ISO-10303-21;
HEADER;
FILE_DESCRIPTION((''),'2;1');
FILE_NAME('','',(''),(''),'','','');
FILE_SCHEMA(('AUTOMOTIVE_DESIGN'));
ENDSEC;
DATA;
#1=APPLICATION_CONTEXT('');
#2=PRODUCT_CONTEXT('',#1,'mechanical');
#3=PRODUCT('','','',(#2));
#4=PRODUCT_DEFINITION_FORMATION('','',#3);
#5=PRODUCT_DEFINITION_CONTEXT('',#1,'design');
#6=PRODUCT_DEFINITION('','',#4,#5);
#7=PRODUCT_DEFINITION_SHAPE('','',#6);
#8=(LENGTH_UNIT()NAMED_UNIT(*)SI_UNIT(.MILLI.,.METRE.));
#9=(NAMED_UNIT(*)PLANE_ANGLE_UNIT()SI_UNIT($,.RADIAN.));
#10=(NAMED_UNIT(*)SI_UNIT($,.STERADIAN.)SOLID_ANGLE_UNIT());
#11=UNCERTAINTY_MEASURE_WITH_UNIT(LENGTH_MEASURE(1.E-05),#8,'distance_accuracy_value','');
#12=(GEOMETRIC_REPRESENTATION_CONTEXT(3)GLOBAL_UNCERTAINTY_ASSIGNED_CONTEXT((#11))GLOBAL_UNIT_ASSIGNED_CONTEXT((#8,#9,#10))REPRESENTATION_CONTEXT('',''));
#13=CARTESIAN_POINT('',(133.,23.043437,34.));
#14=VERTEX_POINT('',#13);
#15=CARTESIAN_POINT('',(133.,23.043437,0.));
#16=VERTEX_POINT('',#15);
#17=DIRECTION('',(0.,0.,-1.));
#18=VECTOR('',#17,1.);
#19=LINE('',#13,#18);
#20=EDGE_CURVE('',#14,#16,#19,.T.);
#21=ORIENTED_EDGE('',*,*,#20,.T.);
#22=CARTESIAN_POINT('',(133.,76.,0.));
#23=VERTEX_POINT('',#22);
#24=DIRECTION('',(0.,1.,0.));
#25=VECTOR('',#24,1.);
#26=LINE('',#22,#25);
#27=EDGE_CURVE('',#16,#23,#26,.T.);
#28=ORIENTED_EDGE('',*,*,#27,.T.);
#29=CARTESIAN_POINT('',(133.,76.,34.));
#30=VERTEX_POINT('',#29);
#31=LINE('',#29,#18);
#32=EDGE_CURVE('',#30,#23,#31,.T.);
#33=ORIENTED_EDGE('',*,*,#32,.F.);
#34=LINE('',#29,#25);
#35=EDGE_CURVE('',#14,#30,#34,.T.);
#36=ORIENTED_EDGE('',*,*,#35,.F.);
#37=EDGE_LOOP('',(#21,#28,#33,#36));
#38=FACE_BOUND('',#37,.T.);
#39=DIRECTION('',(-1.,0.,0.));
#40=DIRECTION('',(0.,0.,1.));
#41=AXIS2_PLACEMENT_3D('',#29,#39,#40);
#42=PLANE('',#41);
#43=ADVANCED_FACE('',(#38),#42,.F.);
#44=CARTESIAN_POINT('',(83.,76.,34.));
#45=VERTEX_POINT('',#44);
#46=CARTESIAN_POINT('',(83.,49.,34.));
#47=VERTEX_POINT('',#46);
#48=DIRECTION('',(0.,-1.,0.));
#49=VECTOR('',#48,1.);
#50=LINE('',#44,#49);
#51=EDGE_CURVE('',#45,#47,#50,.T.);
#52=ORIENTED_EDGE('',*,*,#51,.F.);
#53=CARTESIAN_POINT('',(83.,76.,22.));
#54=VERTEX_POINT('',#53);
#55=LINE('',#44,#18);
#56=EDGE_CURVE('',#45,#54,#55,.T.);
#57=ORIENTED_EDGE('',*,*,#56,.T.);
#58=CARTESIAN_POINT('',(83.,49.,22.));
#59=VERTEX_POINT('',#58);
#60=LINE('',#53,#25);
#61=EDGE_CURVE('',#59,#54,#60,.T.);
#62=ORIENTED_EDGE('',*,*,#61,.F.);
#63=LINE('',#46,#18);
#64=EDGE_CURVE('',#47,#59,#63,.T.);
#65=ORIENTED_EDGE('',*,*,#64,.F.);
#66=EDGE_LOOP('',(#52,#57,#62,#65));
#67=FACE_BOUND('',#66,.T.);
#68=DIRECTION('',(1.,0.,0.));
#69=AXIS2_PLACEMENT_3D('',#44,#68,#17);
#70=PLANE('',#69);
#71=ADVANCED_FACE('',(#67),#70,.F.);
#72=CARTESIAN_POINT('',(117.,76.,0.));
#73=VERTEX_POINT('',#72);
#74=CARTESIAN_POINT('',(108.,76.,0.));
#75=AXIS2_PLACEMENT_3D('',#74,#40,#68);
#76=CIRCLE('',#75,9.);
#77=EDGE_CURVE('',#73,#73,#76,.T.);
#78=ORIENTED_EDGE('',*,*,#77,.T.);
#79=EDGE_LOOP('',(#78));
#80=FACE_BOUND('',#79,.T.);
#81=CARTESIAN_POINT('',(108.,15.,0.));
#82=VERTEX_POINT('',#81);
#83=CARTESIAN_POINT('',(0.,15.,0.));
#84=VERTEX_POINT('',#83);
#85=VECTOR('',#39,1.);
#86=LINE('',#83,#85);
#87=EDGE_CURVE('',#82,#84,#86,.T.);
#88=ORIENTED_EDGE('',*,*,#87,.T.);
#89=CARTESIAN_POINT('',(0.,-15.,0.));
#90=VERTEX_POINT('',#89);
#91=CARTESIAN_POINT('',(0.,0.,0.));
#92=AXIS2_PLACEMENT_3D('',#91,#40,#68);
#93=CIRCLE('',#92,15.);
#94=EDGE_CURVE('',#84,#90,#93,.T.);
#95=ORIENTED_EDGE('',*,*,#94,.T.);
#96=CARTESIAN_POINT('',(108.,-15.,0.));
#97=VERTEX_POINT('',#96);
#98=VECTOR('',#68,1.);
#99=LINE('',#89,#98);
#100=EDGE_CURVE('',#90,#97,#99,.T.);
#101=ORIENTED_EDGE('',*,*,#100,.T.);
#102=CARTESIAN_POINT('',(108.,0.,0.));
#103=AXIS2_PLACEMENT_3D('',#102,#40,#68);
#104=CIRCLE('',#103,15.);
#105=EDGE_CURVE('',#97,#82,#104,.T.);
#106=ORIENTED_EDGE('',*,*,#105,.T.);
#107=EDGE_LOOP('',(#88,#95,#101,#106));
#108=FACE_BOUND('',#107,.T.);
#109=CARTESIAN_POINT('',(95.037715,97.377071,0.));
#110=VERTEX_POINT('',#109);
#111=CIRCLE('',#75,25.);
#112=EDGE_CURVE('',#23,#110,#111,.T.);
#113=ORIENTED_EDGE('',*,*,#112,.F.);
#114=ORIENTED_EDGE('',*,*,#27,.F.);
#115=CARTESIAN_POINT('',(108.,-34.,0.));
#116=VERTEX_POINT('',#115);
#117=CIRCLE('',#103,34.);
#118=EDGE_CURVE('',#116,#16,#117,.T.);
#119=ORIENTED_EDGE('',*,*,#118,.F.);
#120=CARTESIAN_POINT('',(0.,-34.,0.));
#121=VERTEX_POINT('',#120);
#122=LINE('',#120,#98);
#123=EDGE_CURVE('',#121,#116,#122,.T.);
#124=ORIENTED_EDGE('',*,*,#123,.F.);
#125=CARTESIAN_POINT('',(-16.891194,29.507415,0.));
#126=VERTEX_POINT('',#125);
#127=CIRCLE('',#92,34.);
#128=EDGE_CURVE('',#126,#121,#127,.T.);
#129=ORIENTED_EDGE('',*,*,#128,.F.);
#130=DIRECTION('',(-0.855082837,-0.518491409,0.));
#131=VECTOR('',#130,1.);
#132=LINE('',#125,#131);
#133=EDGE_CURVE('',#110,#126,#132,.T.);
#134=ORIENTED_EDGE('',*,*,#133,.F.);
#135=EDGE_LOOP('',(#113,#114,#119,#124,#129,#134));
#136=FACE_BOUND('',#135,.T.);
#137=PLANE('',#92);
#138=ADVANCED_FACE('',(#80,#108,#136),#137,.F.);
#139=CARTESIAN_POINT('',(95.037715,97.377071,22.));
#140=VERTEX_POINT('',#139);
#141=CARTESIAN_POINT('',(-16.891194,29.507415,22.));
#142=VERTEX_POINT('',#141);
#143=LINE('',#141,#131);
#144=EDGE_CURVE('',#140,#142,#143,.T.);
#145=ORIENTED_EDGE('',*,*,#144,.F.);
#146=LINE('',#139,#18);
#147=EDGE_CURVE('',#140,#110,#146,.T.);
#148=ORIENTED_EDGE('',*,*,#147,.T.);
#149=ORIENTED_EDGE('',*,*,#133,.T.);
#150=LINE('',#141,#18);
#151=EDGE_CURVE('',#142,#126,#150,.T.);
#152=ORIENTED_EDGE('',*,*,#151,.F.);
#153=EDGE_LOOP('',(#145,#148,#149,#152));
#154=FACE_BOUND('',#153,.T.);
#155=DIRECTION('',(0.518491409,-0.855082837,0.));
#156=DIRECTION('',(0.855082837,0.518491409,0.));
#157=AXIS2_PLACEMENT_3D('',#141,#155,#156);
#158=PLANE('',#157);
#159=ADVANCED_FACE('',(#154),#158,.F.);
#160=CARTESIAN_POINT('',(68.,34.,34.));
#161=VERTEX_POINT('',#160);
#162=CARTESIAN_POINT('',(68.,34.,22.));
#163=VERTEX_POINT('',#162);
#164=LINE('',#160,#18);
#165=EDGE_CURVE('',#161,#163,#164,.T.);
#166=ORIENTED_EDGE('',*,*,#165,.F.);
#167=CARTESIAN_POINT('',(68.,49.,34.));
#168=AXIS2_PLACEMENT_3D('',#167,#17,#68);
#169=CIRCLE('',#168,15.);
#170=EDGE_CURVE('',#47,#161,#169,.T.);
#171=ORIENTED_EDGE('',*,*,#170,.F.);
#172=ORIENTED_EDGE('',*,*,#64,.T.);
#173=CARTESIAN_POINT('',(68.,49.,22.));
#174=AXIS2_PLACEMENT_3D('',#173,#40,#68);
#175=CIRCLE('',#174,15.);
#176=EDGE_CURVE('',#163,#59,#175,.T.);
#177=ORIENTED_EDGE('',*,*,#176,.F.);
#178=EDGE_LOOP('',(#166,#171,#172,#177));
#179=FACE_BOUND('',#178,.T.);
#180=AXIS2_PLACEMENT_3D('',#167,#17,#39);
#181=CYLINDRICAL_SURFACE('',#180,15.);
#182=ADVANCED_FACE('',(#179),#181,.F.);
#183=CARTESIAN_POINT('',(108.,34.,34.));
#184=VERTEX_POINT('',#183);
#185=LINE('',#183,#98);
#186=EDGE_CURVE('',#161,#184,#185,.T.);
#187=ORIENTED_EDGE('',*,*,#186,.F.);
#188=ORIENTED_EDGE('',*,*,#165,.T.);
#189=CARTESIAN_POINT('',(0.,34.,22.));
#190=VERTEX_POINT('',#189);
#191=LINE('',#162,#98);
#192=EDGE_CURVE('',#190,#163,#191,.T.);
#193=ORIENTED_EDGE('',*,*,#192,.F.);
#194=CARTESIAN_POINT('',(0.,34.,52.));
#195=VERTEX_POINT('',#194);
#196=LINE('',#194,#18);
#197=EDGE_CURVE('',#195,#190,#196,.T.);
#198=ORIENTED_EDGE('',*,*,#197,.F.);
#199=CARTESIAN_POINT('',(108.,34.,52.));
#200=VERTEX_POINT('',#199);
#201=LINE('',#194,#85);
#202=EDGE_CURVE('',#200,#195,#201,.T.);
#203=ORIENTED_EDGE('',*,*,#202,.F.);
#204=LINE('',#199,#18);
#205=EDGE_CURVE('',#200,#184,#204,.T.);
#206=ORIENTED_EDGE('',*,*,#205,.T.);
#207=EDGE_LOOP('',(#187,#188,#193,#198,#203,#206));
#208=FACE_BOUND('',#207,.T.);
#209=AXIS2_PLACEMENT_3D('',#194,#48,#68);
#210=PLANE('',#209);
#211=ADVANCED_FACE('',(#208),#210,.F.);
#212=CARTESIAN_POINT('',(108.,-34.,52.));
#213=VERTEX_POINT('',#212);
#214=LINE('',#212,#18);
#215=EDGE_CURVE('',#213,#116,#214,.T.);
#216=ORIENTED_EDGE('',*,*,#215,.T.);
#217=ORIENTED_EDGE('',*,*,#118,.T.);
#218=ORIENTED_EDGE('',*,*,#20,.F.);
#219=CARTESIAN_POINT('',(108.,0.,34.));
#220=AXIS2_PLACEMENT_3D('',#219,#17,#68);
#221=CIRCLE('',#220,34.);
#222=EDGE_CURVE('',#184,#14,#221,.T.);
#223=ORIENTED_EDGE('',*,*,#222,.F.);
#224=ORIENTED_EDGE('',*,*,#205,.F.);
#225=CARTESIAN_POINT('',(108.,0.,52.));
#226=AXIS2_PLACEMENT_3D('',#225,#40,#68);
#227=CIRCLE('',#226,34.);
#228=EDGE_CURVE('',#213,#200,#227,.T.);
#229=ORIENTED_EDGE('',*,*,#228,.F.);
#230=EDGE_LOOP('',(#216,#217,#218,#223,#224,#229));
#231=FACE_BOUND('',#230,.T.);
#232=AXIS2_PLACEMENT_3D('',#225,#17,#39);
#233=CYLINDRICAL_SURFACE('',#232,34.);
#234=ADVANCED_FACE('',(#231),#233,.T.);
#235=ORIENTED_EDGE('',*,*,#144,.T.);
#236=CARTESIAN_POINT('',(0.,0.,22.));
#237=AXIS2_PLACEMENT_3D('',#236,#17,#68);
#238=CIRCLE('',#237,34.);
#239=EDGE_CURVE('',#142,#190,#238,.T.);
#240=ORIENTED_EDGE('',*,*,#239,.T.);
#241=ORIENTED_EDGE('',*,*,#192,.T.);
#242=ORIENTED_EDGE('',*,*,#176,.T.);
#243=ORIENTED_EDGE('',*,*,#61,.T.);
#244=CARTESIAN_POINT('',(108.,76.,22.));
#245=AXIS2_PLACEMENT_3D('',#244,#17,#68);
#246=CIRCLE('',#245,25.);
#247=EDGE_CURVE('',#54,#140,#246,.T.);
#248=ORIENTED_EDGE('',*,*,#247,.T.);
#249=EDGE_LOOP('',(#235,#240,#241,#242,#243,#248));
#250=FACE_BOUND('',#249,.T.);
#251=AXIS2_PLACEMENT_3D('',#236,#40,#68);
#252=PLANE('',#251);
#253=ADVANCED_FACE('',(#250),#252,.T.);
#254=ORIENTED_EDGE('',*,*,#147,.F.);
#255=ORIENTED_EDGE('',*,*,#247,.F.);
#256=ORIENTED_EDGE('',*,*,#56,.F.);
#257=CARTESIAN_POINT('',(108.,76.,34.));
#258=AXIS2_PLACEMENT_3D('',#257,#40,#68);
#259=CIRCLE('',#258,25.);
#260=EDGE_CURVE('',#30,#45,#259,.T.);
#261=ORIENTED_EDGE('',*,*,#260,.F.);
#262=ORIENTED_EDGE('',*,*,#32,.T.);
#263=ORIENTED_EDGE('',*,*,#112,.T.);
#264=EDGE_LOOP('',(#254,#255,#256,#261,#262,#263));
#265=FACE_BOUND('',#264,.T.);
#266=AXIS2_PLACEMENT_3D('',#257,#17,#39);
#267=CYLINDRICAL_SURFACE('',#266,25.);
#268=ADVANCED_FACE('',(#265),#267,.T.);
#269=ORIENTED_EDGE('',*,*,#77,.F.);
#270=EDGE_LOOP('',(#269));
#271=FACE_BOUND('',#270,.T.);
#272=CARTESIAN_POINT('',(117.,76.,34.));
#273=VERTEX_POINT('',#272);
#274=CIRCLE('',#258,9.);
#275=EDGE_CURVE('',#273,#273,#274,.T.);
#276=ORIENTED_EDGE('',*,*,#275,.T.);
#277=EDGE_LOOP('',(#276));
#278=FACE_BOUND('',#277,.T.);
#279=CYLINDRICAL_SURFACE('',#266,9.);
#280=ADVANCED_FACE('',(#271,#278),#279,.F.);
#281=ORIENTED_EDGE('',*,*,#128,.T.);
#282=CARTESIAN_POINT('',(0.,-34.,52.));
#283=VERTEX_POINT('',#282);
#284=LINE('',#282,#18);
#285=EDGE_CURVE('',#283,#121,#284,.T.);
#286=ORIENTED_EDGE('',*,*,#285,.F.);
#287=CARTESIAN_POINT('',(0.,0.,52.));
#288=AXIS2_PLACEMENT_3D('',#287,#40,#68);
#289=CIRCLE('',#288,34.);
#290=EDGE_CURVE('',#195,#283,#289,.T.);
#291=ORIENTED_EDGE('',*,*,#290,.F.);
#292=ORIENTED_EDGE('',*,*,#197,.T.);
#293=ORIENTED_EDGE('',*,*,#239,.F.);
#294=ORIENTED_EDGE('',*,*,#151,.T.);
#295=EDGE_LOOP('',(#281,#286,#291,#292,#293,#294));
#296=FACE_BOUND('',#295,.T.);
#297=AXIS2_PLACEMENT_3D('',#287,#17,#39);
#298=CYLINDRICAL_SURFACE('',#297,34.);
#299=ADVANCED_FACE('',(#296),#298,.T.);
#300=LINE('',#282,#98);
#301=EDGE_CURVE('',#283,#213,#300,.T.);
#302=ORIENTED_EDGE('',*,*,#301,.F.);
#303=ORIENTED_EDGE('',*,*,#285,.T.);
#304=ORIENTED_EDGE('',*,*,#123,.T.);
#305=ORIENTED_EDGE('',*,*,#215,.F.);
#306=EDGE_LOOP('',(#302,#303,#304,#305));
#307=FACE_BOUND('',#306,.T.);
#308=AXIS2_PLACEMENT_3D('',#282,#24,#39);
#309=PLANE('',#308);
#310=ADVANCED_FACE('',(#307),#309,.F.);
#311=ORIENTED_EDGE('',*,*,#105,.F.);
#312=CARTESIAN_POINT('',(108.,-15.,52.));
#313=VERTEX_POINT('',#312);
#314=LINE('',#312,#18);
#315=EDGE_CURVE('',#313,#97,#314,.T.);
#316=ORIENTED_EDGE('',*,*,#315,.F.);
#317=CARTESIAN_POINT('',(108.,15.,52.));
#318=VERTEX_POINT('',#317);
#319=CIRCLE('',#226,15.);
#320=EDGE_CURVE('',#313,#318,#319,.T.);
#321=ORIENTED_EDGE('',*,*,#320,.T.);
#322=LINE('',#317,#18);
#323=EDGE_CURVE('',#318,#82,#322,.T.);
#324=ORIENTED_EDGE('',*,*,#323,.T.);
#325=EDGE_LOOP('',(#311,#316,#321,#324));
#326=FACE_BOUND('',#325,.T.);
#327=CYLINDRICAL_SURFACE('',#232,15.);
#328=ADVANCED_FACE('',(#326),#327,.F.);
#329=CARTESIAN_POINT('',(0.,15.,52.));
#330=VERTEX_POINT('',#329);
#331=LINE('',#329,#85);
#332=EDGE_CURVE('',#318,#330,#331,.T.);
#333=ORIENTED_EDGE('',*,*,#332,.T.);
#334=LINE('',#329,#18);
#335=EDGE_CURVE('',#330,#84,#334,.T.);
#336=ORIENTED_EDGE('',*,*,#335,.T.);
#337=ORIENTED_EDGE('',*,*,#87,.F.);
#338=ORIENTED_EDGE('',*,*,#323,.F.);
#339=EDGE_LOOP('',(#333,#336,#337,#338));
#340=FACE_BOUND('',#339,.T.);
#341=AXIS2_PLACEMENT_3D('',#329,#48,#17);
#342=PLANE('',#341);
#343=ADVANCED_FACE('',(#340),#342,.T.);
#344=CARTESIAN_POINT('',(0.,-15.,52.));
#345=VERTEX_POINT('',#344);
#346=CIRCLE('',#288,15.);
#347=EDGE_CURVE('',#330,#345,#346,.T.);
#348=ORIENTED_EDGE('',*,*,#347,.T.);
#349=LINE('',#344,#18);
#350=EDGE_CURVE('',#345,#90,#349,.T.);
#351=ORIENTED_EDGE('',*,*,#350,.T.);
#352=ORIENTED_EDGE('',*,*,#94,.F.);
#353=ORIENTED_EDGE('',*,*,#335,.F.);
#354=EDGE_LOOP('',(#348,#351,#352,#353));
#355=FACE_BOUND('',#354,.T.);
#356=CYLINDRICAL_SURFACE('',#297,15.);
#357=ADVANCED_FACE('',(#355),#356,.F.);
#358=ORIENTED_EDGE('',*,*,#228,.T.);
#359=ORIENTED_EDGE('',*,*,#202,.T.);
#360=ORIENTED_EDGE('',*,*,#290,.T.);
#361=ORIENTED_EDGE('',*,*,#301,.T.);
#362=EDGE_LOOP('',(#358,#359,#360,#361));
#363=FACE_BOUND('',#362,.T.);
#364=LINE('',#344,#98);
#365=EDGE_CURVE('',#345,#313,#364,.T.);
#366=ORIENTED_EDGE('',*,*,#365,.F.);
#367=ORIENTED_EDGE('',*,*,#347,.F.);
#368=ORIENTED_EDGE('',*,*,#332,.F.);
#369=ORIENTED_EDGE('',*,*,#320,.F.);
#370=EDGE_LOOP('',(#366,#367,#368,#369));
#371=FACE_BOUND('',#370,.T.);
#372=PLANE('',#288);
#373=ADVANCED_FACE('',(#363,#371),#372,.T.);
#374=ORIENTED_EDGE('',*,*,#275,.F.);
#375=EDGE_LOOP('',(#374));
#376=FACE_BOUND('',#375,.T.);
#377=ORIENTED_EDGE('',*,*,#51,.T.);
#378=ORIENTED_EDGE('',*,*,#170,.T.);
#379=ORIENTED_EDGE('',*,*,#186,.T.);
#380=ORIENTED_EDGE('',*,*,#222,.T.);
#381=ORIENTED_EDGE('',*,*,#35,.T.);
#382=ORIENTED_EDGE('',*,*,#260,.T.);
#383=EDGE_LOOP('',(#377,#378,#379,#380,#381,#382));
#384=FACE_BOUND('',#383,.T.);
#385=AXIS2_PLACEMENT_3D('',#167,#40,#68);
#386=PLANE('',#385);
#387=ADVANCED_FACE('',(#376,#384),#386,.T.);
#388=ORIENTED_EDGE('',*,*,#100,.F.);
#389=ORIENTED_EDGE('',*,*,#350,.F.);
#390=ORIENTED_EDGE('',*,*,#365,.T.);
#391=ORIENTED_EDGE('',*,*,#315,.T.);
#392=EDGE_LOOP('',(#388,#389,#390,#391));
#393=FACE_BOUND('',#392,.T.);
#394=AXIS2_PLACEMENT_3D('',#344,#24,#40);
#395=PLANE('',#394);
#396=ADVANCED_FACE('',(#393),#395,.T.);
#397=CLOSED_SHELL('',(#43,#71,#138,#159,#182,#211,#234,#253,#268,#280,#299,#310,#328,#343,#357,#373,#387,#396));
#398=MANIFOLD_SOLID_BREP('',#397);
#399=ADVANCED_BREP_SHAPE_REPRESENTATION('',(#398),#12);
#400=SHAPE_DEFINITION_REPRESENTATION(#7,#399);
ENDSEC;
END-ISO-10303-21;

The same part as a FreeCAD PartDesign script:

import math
import FreeCAD as App
import Part
import Sketcher
Q = App.Units.Quantity

doc = App.newDocument("Part")
body = doc.addObject("PartDesign::Body", "Body")

# Sketch on XY plane
sketch1 = doc.addObject("Sketcher::SketchObject", "Sketch")
body.addObject(sketch1)
sketch1.AttachmentSupport = (doc.XY_Plane, [""])
sketch1.MapMode = "FlatFace"
sketch1.addGeometry([
    Part.LineSegment(App.Vector(108, 34, 0), App.Vector(0, 34, 0)),  # 0
    Part.ArcOfCircle(Part.Circle(App.Vector(0, 0, 0), App.Vector(0, 0, 1), 34), math.radians(90), math.radians(270)),  # 1
    Part.LineSegment(App.Vector(0, -34, 0), App.Vector(108, -34, 0)),  # 2
    Part.ArcOfCircle(Part.Circle(App.Vector(108, 0, 0), App.Vector(0, 0, 1), 34), math.radians(-90), math.radians(90)),  # 3
    Part.LineSegment(App.Vector(0, 15, 0), App.Vector(108, 15, 0)),  # 4
    Part.ArcOfCircle(Part.Circle(App.Vector(108, 0, 0), App.Vector(0, 0, 1), 15), math.radians(-90), math.radians(90)),  # 5
    Part.LineSegment(App.Vector(108, -15, 0), App.Vector(0, -15, 0)),  # 6
    Part.ArcOfCircle(Part.Circle(App.Vector(0, 0, 0), App.Vector(0, 0, 1), 15), math.radians(90), math.radians(270)),  # 7
], False)
sketch1.addConstraint([
    Sketcher.Constraint("Tangent", 0, 2, 1, 1),
    Sketcher.Constraint("Tangent", 1, 2, 2, 1),
    Sketcher.Constraint("Tangent", 2, 2, 3, 1),
    Sketcher.Constraint("Tangent", 3, 2, 0, 1),
    Sketcher.Constraint("Tangent", 4, 2, 5, 2),
    Sketcher.Constraint("Tangent", 5, 1, 6, 1),
    Sketcher.Constraint("Tangent", 6, 2, 7, 2),
    Sketcher.Constraint("Tangent", 7, 1, 4, 1),
    Sketcher.Constraint("Horizontal", 0),
    Sketcher.Constraint("Horizontal", 2),
    Sketcher.Constraint("Horizontal", 4),
    Sketcher.Constraint("Horizontal", 6),
    Sketcher.Constraint("Coincident", 1, 3, -1, 1),
    Sketcher.Constraint("Coincident", 7, 3, -1, 1),
    Sketcher.Constraint("Vertical", 5, 3, 2, 2),
    Sketcher.Constraint("Radius", 1, Q("34 mm")),
    Sketcher.Constraint("Radius", 5, Q("15 mm")),
    Sketcher.Constraint("DistanceX", 0, 2, 0, 1, Q("108 mm")),
])
pad1 = doc.addObject("PartDesign::Pad", "Pad")
body.addObject(pad1)
pad1.Profile = sketch1
pad1.Length = 52

# Sketch on XY plane
sketch2 = doc.addObject("Sketcher::SketchObject", "Sketch001")
body.addObject(sketch2)
sketch2.AttachmentSupport = (doc.XY_Plane, [""])
sketch2.MapMode = "FlatFace"
sketch2.addGeometry([
    Part.LineSegment(App.Vector(68, 34, 0), App.Vector(108, 34, 0)),  # 0
    Part.ArcOfCircle(Part.Circle(App.Vector(108, 0, 0), App.Vector(0, 0, 1), 34), math.radians(43), math.radians(90)),  # 1
    Part.LineSegment(App.Vector(133, 23, 0), App.Vector(133, 76, 0)),  # 2
    Part.ArcOfCircle(Part.Circle(App.Vector(108, 76, 0), App.Vector(0, 0, 1), 25), math.radians(0), math.radians(180)),  # 3
    Part.LineSegment(App.Vector(83, 76, 0), App.Vector(83, 49, 0)),  # 4
    Part.ArcOfCircle(Part.Circle(App.Vector(68, 49, 0), App.Vector(0, 0, 1), 15), math.radians(-90), math.radians(0)),  # 5
    Part.Circle(App.Vector(108, 76, 0), App.Vector(0, 0, 1), 9),  # 6
], False)
sketch2.addConstraint([
    Sketcher.Constraint("Tangent", 0, 2, 1, 2),
    Sketcher.Constraint("Coincident", 1, 1, 2, 1),
    Sketcher.Constraint("Tangent", 2, 2, 3, 1),
    Sketcher.Constraint("Tangent", 3, 2, 4, 1),
    Sketcher.Constraint("Tangent", 4, 2, 5, 2),
    Sketcher.Constraint("Tangent", 5, 1, 0, 1),
    Sketcher.Constraint("Horizontal", 0),
    Sketcher.Constraint("Vertical", 2),
    Sketcher.Constraint("Vertical", 4),
    Sketcher.Constraint("Coincident", 6, 3, 3, 3),
    Sketcher.Constraint("PointOnObject", 1, 3, -1),
    Sketcher.Constraint("Vertical", 1, 3, 3, 3),
    Sketcher.Constraint("Diameter", 6, Q("18 mm")),
    Sketcher.Constraint("Radius", 1, Q("34 mm")),
    Sketcher.Constraint("Radius", 3, Q("25 mm")),
    Sketcher.Constraint("Radius", 5, Q("15 mm")),
    Sketcher.Constraint("DistanceY", 4, 2, 4, 1, Q("27 mm")),
    Sketcher.Constraint("DistanceX", -1, 1, 1, 3, Q("108 mm")),
])
pad2 = doc.addObject("PartDesign::Pad", "Pad001")
body.addObject(pad2)
pad2.Profile = sketch2
pad2.Length = 34

# Sketch on XY plane
sketch3 = doc.addObject("Sketcher::SketchObject", "Sketch002")
body.addObject(sketch3)
sketch3.AttachmentSupport = (doc.XY_Plane, [""])
sketch3.MapMode = "FlatFace"
sketch3.addGeometry([
    Part.LineSegment(App.Vector(95, 97, 0), App.Vector(-17, 30, 0)),  # 0
    Part.ArcOfCircle(Part.Circle(App.Vector(0, 0, 0), App.Vector(0, 0, 1), 34), math.radians(90), math.radians(120)),  # 1
    Part.LineSegment(App.Vector(0, 34, 0), App.Vector(68, 34, 0)),  # 2
    Part.ArcOfCircle(Part.Circle(App.Vector(68, 49, 0), App.Vector(0, 0, 1), 15), math.radians(-90), math.radians(0)),  # 3
    Part.LineSegment(App.Vector(83, 49, 0), App.Vector(83, 76, 0)),  # 4
    Part.ArcOfCircle(Part.Circle(App.Vector(108, 76, 0), App.Vector(0, 0, 1), 25), math.radians(121), math.radians(180)),  # 5
], False)
sketch3.addConstraint([
    Sketcher.Constraint("Coincident", 0, 2, 1, 2),
    Sketcher.Constraint("Tangent", 1, 1, 2, 1),
    Sketcher.Constraint("Tangent", 2, 2, 3, 1),
    Sketcher.Constraint("Tangent", 3, 2, 4, 1),
    Sketcher.Constraint("Tangent", 4, 2, 5, 2),
    Sketcher.Constraint("Tangent", 5, 1, 0, 1),
    Sketcher.Constraint("Horizontal", 2),
    Sketcher.Constraint("Vertical", 4),
    Sketcher.Constraint("Coincident", 1, 3, -1, 1),
    Sketcher.Constraint("Radius", 1, Q("34 mm")),
    Sketcher.Constraint("Radius", 3, Q("15 mm")),
    Sketcher.Constraint("Radius", 5, Q("25 mm")),
    Sketcher.Constraint("DistanceX", 2, 1, 2, 2, Q("68 mm")),
    Sketcher.Constraint("DistanceY", 4, 1, 4, 2, Q("27 mm")),
    Sketcher.Constraint("Distance", 0, Q("130.898322 mm")),
])
pad3 = doc.addObject("PartDesign::Pad", "Pad002")
body.addObject(pad3)
pad3.Profile = sketch3
pad3.Length = 22

doc.recompute()
